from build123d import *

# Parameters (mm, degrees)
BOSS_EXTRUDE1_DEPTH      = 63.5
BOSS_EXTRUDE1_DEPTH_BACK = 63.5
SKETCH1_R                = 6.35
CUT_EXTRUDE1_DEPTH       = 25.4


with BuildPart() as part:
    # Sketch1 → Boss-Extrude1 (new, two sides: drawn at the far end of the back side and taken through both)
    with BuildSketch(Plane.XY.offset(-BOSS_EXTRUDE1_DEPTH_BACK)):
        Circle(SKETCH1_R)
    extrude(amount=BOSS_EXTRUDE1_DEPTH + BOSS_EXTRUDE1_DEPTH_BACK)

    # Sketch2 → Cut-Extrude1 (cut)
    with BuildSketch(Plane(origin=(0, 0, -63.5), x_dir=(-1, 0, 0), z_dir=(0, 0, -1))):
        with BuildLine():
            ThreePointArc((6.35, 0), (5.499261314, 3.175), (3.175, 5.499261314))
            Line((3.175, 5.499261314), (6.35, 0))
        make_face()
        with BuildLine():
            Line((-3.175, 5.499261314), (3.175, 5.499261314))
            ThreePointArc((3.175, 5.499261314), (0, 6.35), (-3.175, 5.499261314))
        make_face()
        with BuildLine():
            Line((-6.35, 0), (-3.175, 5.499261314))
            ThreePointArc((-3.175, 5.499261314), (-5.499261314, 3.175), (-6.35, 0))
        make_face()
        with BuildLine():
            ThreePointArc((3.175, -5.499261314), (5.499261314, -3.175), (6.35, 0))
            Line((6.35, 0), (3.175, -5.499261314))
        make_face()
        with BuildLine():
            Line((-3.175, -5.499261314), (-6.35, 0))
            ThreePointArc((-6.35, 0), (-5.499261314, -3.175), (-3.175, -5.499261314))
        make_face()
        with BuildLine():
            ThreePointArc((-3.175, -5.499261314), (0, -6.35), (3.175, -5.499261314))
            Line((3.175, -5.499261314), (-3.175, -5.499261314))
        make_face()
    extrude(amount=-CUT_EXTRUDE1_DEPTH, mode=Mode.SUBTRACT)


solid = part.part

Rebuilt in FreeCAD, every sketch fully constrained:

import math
import FreeCAD as App
import Part
import Sketcher
from FreeCAD import Vector
Q = App.Units.Quantity

doc = App.newDocument("Part")
body = doc.addObject("PartDesign::Body", "Body")

sketch1 = body.newObject("Sketcher::SketchObject", "Sketch")
sketch1.AttachmentSupport = (doc.getObject("XY_Plane"), [""])
sketch1.MapMode = "FlatFace"
sketch1.addGeometry(Part.Circle(Vector(0, 0, 0), Vector(0, 0, 1), 6.35), False)
sketch1.addConstraint([
    Sketcher.Constraint("Coincident", 0, 3, -1, 1),
    Sketcher.Constraint("Diameter", 0, Q("0.5 in")),
])
pad1 = body.newObject("PartDesign::Pad", "Pad")
pad1.Profile = sketch1
pad1.Type = "TwoLengths"
pad1.Length = Q("2.5 in")
pad1.Length2 = Q("2.5 in")

sketch2 = body.newObject("Sketcher::SketchObject", "Sketch001")
sketch2.AttachmentSupport = (doc.getObject("XY_Plane"), [""])
sketch2.MapMode = "FlatFace"
sketch2.AttachmentOffset = App.Placement(Vector(0, 0, -2.5 * 25.4), App.Rotation())
sketch2.addGeometry([
    Part.ArcOfCircle(Part.Circle(Vector(0, 0, 0), Vector(0, 0, 1), 6.35), math.radians(120), math.radians(180)),
    Part.LineSegment(Vector(-3.175, 5.499261, 0), Vector(-6.35, 0, 0)),
    Part.LineSegment(Vector(3.175, 5.499261, 0), Vector(-3.175, 5.499261, 0)),
    Part.ArcOfCircle(Part.Circle(Vector(0, 0, 0), Vector(0, 0, 1), 6.35), math.radians(60), math.radians(120)),
    Part.LineSegment(Vector(6.35, 0, 0), Vector(3.175, 5.499261, 0)),
    Part.ArcOfCircle(Part.Circle(Vector(0, 0, 0), Vector(0, 0, 1), 6.35), math.radians(0), math.radians(60)),
    Part.ArcOfCircle(Part.Circle(Vector(0, 0, 0), Vector(0, 0, 1), 6.35), math.radians(180), math.radians(240)),
    Part.LineSegment(Vector(-6.35, 0, 0), Vector(-3.175, -5.499261, 0)),
    Part.LineSegment(Vector(3.175, -5.499261, 0), Vector(6.35, 0, 0)),
    Part.ArcOfCircle(Part.Circle(Vector(0, 0, 0), Vector(0, 0, 1), 6.35), math.radians(-60), math.radians(0)),
    Part.ArcOfCircle(Part.Circle(Vector(0, 0, 0), Vector(0, 0, 1), 6.35), math.radians(-120), math.radians(-60)),
    Part.LineSegment(Vector(-3.175, -5.499261, 0), Vector(3.175, -5.499261, 0)),
], False)
sketch2.addConstraint([
    Sketcher.Constraint("Coincident", 0, 1, 1, 1),
    Sketcher.Constraint("Coincident", 1, 2, 0, 2),
    Sketcher.Constraint("Coincident", 2, 1, 3, 1),
    Sketcher.Constraint("Coincident", 3, 2, 2, 2),
    Sketcher.Constraint("Coincident", 4, 1, 5, 1),
    Sketcher.Constraint("Coincident", 5, 2, 4, 2),
    Sketcher.Constraint("Coincident", 6, 1, 7, 1),
    Sketcher.Constraint("Coincident", 7, 2, 6, 2),
    Sketcher.Constraint("Coincident", 8, 1, 9, 1),
    Sketcher.Constraint("Coincident", 9, 2, 8, 2),
    Sketcher.Constraint("Coincident", 10, 1, 11, 1),
    Sketcher.Constraint("Coincident", 11, 2, 10, 2),
    Sketcher.Constraint("Horizontal", 2),
    Sketcher.Constraint("Horizontal", 11),
    Sketcher.Constraint("Coincident", 0, 3, -1, 1),
    Sketcher.Constraint("Coincident", 3, 3, -1, 1),
    Sketcher.Constraint("Coincident", 5, 3, -1, 1),
    Sketcher.Constraint("Coincident", 6, 3, -1, 1),
    Sketcher.Constraint("Coincident", 9, 3, -1, 1),
    Sketcher.Constraint("Coincident", 10, 3, -1, 1),
    Sketcher.Constraint("Coincident", 3, 2, 0, 1),
    Sketcher.Constraint("Coincident", 5, 2, 2, 1),
    Sketcher.Constraint("Coincident", 6, 1, 1, 2),
    Sketcher.Constraint("Coincident", 9, 2, 4, 1),
    Sketcher.Constraint("Coincident", 10, 1, 7, 2),
    Sketcher.Constraint("PointOnObject", 1, 2, -1),
    Sketcher.Constraint("PointOnObject", 4, 1, -1),
    Sketcher.Constraint("Parallel", 4, 7),
    Sketcher.Constraint("Parallel", 1, 8),
    Sketcher.Constraint("Radius", 0, Q("0.25 in")),
    Sketcher.Constraint("Angle", 1, Q("-120 deg")),
])
pocket1 = body.newObject("PartDesign::Pocket", "Pocket")
pocket1.Profile = sketch2
pocket1.Length = Q("1 in")
pocket1.Reversed = True

doc.recompute()
